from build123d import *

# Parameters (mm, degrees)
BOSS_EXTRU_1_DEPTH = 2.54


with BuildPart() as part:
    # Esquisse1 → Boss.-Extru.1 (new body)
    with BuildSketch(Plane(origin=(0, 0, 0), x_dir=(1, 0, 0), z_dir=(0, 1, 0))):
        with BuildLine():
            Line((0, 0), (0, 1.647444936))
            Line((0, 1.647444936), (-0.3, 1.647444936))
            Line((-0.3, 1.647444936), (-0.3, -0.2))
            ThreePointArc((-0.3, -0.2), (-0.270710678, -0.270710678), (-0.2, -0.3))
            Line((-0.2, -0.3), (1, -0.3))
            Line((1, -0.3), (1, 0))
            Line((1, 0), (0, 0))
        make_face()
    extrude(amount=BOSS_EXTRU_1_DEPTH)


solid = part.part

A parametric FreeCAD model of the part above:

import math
import FreeCAD as App
import Part
import Sketcher
Q = App.Units.Quantity

doc = App.newDocument("Part")
body = doc.addObject("PartDesign::Body", "Body")

# Sketch on XZ plane
sketch1 = body.newObject("Sketcher::SketchObject", "Sketch")
sketch1.AttachmentSupport = (doc.getObject("XZ_Plane"), [""])
sketch1.MapMode = "FlatFace"
sketch1.addGeometry([
    Part.LineSegment(App.Vector(0, 0, 0), App.Vector(0, -1.65, 0)),  # 0
    Part.LineSegment(App.Vector(0, -1.65, 0), App.Vector(-0.3, -1.65, 0)),  # 1
    Part.LineSegment(App.Vector(-0.3, -1.65, 0), App.Vector(-0.3, 0.2, 0)),  # 2
    Part.ArcOfCircle(Part.Circle(App.Vector(-0.2, 0.2, 0), App.Vector(0, 0, 1), 0.1), math.radians(90), math.radians(180)),  # 3
    Part.LineSegment(App.Vector(-0.2, 0.3, 0), App.Vector(1, 0.3, 0)),  # 4
    Part.LineSegment(App.Vector(1, 0.3, 0), App.Vector(1, 0, 0)),  # 5
    Part.LineSegment(App.Vector(1, 0, 0), App.Vector(0, 0, 0)),  # 6
], False)
sketch1.addConstraint([
    Sketcher.Constraint("Coincident", 0, 2, 1, 1),
    Sketcher.Constraint("Coincident", 1, 2, 2, 1),
    Sketcher.Constraint("Tangent", 2, 2, 3, 2),
    Sketcher.Constraint("Tangent", 3, 1, 4, 1),
    Sketcher.Constraint("Coincident", 4, 2, 5, 1),
    Sketcher.Constraint("Coincident", 5, 2, 6, 1),
    Sketcher.Constraint("Coincident", 6, 2, 0, 1),
    Sketcher.Constraint("Vertical", 0),
    Sketcher.Constraint("Horizontal", 1),
    Sketcher.Constraint("Vertical", 2),
    Sketcher.Constraint("Horizontal", 4),
    Sketcher.Constraint("Vertical", 5),
    Sketcher.Constraint("Horizontal", 6),
    Sketcher.Constraint("Coincident", 6, 2, -1, 1),
    Sketcher.Constraint("Equal", 1, 5),
    Sketcher.Constraint("Radius", 3, Q("0.1 mm")),
    Sketcher.Constraint("DistanceX", 6, 2, 6, 1, Q("1 mm")),
    Sketcher.Constraint("DistanceX", 1, 2, 1, 1, Q("0.3 mm")),
    Sketcher.Constraint("DistanceY", 0, 2, 0, 1, Q("1.647445 mm")),
])
pad1 = body.newObject("PartDesign::Pad", "Pad")
pad1.Profile = sketch1
pad1.Length = 2.54
pad1.Reversed = True

doc.recompute()
